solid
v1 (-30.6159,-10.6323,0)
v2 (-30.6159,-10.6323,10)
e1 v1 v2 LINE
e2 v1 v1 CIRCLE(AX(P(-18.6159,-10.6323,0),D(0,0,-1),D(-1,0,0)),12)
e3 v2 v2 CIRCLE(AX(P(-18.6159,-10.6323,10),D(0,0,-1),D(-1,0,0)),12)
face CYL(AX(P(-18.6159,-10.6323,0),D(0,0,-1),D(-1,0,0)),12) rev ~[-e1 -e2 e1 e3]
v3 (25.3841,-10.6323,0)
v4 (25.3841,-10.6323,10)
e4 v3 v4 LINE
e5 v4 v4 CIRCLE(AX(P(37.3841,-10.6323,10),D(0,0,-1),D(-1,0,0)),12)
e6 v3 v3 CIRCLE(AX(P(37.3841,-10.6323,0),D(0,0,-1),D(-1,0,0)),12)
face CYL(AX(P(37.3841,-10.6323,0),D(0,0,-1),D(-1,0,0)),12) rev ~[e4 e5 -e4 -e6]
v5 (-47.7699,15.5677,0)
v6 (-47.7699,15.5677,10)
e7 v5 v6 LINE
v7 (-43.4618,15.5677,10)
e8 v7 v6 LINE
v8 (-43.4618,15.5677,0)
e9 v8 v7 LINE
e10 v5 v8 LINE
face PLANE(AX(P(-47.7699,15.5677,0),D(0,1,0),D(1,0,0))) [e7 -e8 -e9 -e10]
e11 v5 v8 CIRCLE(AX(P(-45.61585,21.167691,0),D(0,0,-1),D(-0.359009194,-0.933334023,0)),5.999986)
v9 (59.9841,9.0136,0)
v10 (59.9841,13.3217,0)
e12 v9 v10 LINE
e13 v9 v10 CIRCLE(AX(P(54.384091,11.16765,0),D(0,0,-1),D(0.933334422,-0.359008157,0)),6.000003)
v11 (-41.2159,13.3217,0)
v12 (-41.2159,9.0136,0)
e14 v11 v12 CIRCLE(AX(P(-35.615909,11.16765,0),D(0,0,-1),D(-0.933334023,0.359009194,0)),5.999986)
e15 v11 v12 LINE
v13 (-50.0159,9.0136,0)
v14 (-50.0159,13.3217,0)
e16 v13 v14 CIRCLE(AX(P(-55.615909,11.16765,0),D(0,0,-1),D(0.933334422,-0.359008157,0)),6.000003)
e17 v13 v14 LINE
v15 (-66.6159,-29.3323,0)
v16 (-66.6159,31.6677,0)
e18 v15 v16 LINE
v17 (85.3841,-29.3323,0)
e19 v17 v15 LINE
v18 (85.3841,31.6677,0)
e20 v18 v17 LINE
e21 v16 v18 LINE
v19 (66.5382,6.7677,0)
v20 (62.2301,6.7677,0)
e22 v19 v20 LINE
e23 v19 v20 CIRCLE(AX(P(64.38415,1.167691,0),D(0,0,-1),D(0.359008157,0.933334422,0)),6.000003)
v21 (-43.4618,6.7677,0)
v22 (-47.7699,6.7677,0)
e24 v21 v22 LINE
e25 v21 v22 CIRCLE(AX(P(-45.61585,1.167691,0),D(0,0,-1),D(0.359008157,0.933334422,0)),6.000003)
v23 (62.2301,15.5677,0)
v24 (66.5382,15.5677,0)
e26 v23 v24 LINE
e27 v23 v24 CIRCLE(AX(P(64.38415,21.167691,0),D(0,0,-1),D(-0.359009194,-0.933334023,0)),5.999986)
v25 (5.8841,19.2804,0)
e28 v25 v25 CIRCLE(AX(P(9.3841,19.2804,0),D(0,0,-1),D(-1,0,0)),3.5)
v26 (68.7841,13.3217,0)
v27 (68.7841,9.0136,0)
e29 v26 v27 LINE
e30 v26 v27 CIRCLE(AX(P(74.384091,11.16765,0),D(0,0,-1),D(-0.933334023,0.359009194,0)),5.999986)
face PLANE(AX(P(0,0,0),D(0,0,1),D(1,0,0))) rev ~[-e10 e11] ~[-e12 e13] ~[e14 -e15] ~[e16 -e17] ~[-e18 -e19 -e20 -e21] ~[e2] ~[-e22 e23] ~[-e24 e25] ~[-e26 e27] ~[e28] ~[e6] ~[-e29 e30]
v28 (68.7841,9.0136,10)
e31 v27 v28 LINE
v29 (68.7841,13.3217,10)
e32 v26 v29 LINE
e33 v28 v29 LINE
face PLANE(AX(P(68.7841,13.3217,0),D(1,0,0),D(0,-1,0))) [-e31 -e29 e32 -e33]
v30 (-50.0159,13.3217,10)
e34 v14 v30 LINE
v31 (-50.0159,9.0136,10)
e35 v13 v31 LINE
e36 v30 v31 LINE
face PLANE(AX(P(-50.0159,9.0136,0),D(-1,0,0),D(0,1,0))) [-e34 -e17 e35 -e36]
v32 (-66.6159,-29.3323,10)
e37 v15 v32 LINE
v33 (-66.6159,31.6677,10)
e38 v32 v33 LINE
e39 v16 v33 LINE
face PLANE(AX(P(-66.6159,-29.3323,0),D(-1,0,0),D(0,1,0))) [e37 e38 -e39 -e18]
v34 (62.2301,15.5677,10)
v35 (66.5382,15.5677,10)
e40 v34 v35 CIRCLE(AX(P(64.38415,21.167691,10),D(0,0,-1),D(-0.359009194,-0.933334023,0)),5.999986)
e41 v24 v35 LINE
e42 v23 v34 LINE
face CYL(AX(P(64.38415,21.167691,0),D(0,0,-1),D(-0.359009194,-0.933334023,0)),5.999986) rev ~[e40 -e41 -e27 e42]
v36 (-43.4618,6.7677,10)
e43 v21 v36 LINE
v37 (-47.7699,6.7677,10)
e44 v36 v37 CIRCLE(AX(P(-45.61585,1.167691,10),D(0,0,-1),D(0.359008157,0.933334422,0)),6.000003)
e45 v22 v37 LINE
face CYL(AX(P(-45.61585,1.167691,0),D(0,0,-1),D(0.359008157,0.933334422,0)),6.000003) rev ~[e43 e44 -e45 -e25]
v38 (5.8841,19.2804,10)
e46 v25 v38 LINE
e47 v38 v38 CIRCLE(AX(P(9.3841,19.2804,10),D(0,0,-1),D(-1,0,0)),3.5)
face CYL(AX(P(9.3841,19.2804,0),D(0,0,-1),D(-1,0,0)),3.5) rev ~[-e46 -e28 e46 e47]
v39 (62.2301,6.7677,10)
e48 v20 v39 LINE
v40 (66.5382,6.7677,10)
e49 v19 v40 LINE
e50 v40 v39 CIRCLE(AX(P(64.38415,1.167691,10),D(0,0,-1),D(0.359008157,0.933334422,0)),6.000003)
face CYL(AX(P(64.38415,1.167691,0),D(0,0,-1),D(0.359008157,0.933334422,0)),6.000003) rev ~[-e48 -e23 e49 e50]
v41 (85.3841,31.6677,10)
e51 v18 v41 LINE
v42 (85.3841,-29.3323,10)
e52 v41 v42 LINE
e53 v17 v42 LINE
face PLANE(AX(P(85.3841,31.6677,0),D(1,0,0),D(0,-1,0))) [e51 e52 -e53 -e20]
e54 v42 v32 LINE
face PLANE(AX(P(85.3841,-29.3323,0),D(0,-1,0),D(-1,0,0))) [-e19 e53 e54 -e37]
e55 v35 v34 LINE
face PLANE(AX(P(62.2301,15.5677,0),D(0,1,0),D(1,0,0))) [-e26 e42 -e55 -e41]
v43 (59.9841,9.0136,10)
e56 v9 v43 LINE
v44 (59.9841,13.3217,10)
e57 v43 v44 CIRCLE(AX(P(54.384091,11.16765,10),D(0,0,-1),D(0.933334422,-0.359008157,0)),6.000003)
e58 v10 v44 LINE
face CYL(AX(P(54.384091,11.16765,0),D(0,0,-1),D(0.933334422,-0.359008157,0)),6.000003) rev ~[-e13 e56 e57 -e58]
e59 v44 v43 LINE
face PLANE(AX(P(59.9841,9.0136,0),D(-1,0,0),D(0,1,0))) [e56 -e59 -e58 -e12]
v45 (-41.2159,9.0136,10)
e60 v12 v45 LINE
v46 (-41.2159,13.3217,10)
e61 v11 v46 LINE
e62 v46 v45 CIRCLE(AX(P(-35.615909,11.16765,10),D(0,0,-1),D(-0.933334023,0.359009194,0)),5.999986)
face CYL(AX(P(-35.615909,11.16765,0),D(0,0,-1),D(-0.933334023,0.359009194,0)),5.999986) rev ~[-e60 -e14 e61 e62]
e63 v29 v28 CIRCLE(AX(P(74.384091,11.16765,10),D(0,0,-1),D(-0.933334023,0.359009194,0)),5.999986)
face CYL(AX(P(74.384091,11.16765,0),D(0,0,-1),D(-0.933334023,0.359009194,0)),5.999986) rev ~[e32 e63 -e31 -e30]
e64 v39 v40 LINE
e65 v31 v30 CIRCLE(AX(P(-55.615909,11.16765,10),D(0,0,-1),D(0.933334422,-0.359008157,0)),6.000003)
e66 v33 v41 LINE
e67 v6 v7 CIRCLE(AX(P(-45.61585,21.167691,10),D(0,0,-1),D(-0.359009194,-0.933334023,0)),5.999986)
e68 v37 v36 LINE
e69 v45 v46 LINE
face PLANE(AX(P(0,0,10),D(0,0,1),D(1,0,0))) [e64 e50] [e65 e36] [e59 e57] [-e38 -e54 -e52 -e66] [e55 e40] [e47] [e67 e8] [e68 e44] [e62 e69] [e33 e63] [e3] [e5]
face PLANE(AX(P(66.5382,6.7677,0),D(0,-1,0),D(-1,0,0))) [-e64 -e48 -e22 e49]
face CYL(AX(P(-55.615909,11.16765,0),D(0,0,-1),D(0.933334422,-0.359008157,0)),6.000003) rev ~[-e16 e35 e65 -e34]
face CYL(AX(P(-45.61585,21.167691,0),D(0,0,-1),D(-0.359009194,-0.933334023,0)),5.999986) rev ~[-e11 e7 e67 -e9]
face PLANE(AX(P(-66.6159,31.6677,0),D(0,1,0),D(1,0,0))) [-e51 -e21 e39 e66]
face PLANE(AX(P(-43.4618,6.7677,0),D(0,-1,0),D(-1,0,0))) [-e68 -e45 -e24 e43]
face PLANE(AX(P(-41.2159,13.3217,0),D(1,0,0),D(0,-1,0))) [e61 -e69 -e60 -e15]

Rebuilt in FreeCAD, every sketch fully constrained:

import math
import FreeCAD as App
import Part
import Sketcher
from FreeCAD import Vector
Q = App.Units.Quantity

doc = App.newDocument("Part")
body = doc.addObject("PartDesign::Body", "Body")

sketch1 = body.newObject("Sketcher::SketchObject", "Sketch")
sketch1.AttachmentSupport = (doc.getObject("XY_Plane"), [""])
sketch1.MapMode = "FlatFace"
sketch1.addGeometry(Part.LineSegment(Vector(85, 32, 0), Vector(-67, 32, 0)), False)
sketch1.addGeometry(Part.LineSegment(Vector(-67, 32, 0), Vector(-67, -29, 0)), False)
sketch1.addGeometry(Part.LineSegment(Vector(-67, -29, 0), Vector(85, -29, 0)), False)
sketch1.addGeometry(Part.LineSegment(Vector(85, -29, 0), Vector(85, 32, 0)), False)
sketch1.addConstraint(Sketcher.Constraint("Coincident", 0, 2, 1, 1))
sketch1.addConstraint(Sketcher.Constraint("Coincident", 1, 2, 2, 1))
sketch1.addConstraint(Sketcher.Constraint("Coincident", 2, 2, 3, 1))
sketch1.addConstraint(Sketcher.Constraint("Coincident", 3, 2, 0, 1))
sketch1.addConstraint(Sketcher.Constraint("Horizontal", 0))
sketch1.addConstraint(Sketcher.Constraint("Vertical", 1))
sketch1.addConstraint(Sketcher.Constraint("Horizontal", 2))
sketch1.addConstraint(Sketcher.Constraint("Vertical", 3))
sketch1.addConstraint(Sketcher.Constraint("DistanceX", 0, 2, 0, 1, Q("152 mm")))
sketch1.addConstraint(Sketcher.Constraint("DistanceY", 1, 2, 1, 1, Q("61 mm")))
sketch1.addConstraint(Sketcher.Constraint("DistanceX", 0, 2, -1, 1, Q("66.616 mm")))
sketch1.addConstraint(Sketcher.Constraint("DistanceY", -1, 1, 0, 2, Q("31.6677 mm")))
pad1 = body.newObject("PartDesign::Pad", "Pad")
pad1.Profile = sketch1
pad1.Length = 10

sketch2 = body.newObject("Sketcher::SketchObject", "Sketch001")
sketch2.AttachmentSupport = (doc.getObject("XY_Plane"), [""])
sketch2.MapMode = "FlatFace"
sketch2.addGeometry(Part.LineSegment(Vector(66.5, 15.6, 0), Vector(62.2, 15.6, 0)), False)
sketch2.addGeometry(Part.ArcOfCircle(Part.Circle(Vector(64.4, 21.2, 0), Vector(0, 0, 1), 6), math.radians(-69), math.radians(249)), False)
sketch2.addGeometry(Part.LineSegment(Vector(68.8, 9, 0), Vector(68.8, 13.3, 0)), False)
sketch2.addGeometry(Part.ArcOfCircle(Part.Circle(Vector(74.4, 11.2, 0), Vector(0, 0, 1), 6), math.radians(-159), math.radians(159)), False)
sketch2.addGeometry(Part.LineSegment(Vector(62.2, 6.8, 0), Vector(66.5, 6.8, 0)), False)
sketch2.addGeometry(Part.ArcOfCircle(Part.Circle(Vector(64.4, 1.2, 0), Vector(0, 0, 1), 6), math.radians(111), math.radians(429)), False)
sketch2.addGeometry(Part.LineSegment(Vector(60, 13.3, 0), Vector(60, 9, 0)), False)
sketch2.addGeometry(Part.ArcOfCircle(Part.Circle(Vector(54.4, 11.2, 0), Vector(0, 0, 1), 6), math.radians(21), math.radians(339)), False)
sketch2.addGeometry(Part.Circle(Vector(37.4, -10.6, 0), Vector(0, 0, 1), 12), False)
sketch2.addGeometry(Part.Circle(Vector(-18.6, -10.6, 0), Vector(0, 0, 1), 12), False)
sketch2.addGeometry(Part.LineSegment(Vector(-41.2, 9, 0), Vector(-41.2, 13.3, 0)), False)
sketch2.addGeometry(Part.ArcOfCircle(Part.Circle(Vector(-35.6, 11.2, 0), Vector(0, 0, 1), 6), math.radians(-159), math.radians(159)), False)
sketch2.addGeometry(Part.LineSegment(Vector(-43.5, 15.6, 0), Vector(-47.8, 15.6, 0)), False)
sketch2.addGeometry(Part.ArcOfCircle(Part.Circle(Vector(-45.6, 21.2, 0), Vector(0, 0, 1), 6), math.radians(-69), math.radians(249)), False)
sketch2.addGeometry(Part.LineSegment(Vector(-50, 13.3, 0), Vector(-50, 9, 0)), False)
sketch2.addGeometry(Part.ArcOfCircle(Part.Circle(Vector(-55.6, 11.2, 0), Vector(0, 0, 1), 6), math.radians(21), math.radians(339)), False)
sketch2.addGeometry(Part.LineSegment(Vector(-47.8, 6.8, 0), Vector(-43.5, 6.8, 0)), False)
sketch2.addGeometry(Part.ArcOfCircle(Part.Circle(Vector(-45.6, 1.2, 0), Vector(0, 0, 1), 6), math.radians(111), math.radians(429)), False)
sketch2.addConstraint(Sketcher.Constraint("Coincident", 0, 1, 1, 1))
sketch2.addConstraint(Sketcher.Constraint("Coincident", 1, 2, 0, 2))
sketch2.addConstraint(Sketcher.Constraint("Coincident", 2, 1, 3, 1))
sketch2.addConstraint(Sketcher.Constraint("Coincident", 3, 2, 2, 2))
sketch2.addConstraint(Sketcher.Constraint("Coincident", 4, 1, 5, 1))
sketch2.addConstraint(Sketcher.Constraint("Coincident", 5, 2, 4, 2))
sketch2.addConstraint(Sketcher.Constraint("Coincident", 6, 1, 7, 1))
sketch2.addConstraint(Sketcher.Constraint("Coincident", 7, 2, 6, 2))
sketch2.addConstraint(Sketcher.Constraint("Coincident", 10, 1, 11, 1))
sketch2.addConstraint(Sketcher.Constraint("Coincident", 11, 2, 10, 2))
sketch2.addConstraint(Sketcher.Constraint("Coincident", 12, 1, 13, 1))
sketch2.addConstraint(Sketcher.Constraint("Coincident", 13, 2, 12, 2))
sketch2.addConstraint(Sketcher.Constraint("Coincident", 14, 1, 15, 1))
sketch2.addConstraint(Sketcher.Constraint("Coincident", 15, 2, 14, 2))
sketch2.addConstraint(Sketcher.Constraint("Coincident", 16, 1, 17, 1))
sketch2.addConstraint(Sketcher.Constraint("Coincident", 17, 2, 16, 2))
sketch2.addConstraint(Sketcher.Constraint("Horizontal", 0))
sketch2.addConstraint(Sketcher.Constraint("Vertical", 2))
sketch2.addConstraint(Sketcher.Constraint("Horizontal", 4))
sketch2.addConstraint(Sketcher.Constraint("Vertical", 6))
sketch2.addConstraint(Sketcher.Constraint("Vertical", 10))
sketch2.addConstraint(Sketcher.Constraint("Horizontal", 12))
sketch2.addConstraint(Sketcher.Constraint("Vertical", 14))
sketch2.addConstraint(Sketcher.Constraint("Horizontal", 16))
sketch2.addConstraint(Sketcher.Constraint("Equal", 1, 3))
sketch2.addConstraint(Sketcher.Constraint("Equal", 3, 5))
sketch2.addConstraint(Sketcher.Constraint("Equal", 5, 7))
sketch2.addConstraint(Sketcher.Constraint("Equal", 8, 9))
sketch2.addConstraint(Sketcher.Constraint("Equal", 7, 11))
sketch2.addConstraint(Sketcher.Constraint("Equal", 11, 13))
sketch2.addConstraint(Sketcher.Constraint("Equal", 13, 15))
sketch2.addConstraint(Sketcher.Constraint("Equal", 15, 17))
sketch2.addConstraint(Sketcher.Constraint("Horizontal", 3, 3, 7, 3))
sketch2.addConstraint(Sketcher.Constraint("Horizontal", 8, 3, 9, 3))
sketch2.addConstraint(Sketcher.Constraint("Horizontal", 7, 3, 11, 3))
sketch2.addConstraint(Sketcher.Constraint("Horizontal", 1, 3, 13, 3))
sketch2.addConstraint(Sketcher.Constraint("Horizontal", 11, 3, 15, 3))
sketch2.addConstraint(Sketcher.Constraint("Horizontal", 5, 3, 17, 3))
sketch2.addConstraint(Sketcher.Constraint("Horizontal", 3, 2, 6, 1))
sketch2.addConstraint(Sketcher.Constraint("Horizontal", 7, 2, 10, 1))
sketch2.addConstraint(Sketcher.Constraint("Horizontal", 1, 2, 12, 1))
sketch2.addConstraint(Sketcher.Constraint("Horizontal", 11, 2, 14, 1))
sketch2.addConstraint(Sketcher.Constraint("Horizontal", 5, 2, 16, 1))
sketch2.addConstraint(Sketcher.Constraint("Vertical", 1, 3, 5, 3))
sketch2.addConstraint(Sketcher.Constraint("Vertical", 13, 3, 17, 3))
sketch2.addConstraint(Sketcher.Constraint("Vertical", 1, 2, 4, 1))
sketch2.addConstraint(Sketcher.Constraint("Equal", 16, 2))
sketch2.addConstraint(Sketcher.Constraint("Diameter", 8, Q("24 mm")))
sketch2.addConstraint(Sketcher.Constraint("Radius", 1, Q("6 mm")))
sketch2.addConstraint(Sketcher.Constraint("DistanceX", 1, 3, 3, 3, Q("10 mm")))
sketch2.addConstraint(Sketcher.Constraint("DistanceY", 3, 3, 1, 3, Q("10 mm")))
sketch2.addConstraint(Sketcher.Constraint("DistanceY", 5, 3, 3, 3, Q("10 mm")))
sketch2.addConstraint(Sketcher.Constraint("DistanceX", 7, 3, 1, 3, Q("10 mm")))
sketch2.addConstraint(Sketcher.Constraint("DistanceX", 8, 3, 7, 3, Q("17 mm")))
sketch2.addConstraint(Sketcher.Constraint("DistanceX", 9, 3, 8, 3, Q("56 mm")))
sketch2.addConstraint(Sketcher.Constraint("DistanceX", 11, 3, 9, 3, Q("17 mm")))
sketch2.addConstraint(Sketcher.Constraint("DistanceX", 13, 3, 11, 3, Q("10 mm")))
sketch2.addConstraint(Sketcher.Constraint("DistanceX", 15, 3, 13, 3, Q("10 mm")))
sketch2.addConstraint(Sketcher.Constraint("DistanceY", 8, 3, 7, 3, Q("21.8 mm")))
sketch2.addConstraint(Sketcher.Constraint("DistanceY", 0, 1, 1, 3, Q("5.6 mm")))
sketch2.addConstraint(Sketcher.Constraint("DistanceX", -1, 1, 1, 2, Q("62.23 mm")))
sketch2.addConstraint(Sketcher.Constraint("DistanceY", -1, 1, 1, 3, Q("21.1677 mm")))
pocket1 = body.newObject("PartDesign::Pocket", "Pocket")
pocket1.Profile = sketch2
pocket1.Type = "ThroughAll"
pocket1.Reversed = True

sketch3 = body.newObject("Sketcher::SketchObject", "Sketch002")
sketch3.AttachmentSupport = (doc.getObject("XY_Plane"), [""])
sketch3.MapMode = "FlatFace"
sketch3.addGeometry(Part.Circle(Vector(9.4, 19.3, 0), Vector(0, 0, 1), 3.5), False)
sketch3.addConstraint(Sketcher.Constraint("Diameter", 0, Q("7 mm")))
sketch3.addConstraint(Sketcher.Constraint("DistanceX", -1, 1, 0, 3, Q("9.384 mm")))
sketch3.addConstraint(Sketcher.Constraint("DistanceY", -1, 1, 0, 3, Q("19.2804 mm")))
pocket2 = body.newObject("PartDesign::Pocket", "Pocket001")
pocket2.Profile = sketch3
pocket2.Type = "ThroughAll"
pocket2.Reversed = True

doc.recompute()
